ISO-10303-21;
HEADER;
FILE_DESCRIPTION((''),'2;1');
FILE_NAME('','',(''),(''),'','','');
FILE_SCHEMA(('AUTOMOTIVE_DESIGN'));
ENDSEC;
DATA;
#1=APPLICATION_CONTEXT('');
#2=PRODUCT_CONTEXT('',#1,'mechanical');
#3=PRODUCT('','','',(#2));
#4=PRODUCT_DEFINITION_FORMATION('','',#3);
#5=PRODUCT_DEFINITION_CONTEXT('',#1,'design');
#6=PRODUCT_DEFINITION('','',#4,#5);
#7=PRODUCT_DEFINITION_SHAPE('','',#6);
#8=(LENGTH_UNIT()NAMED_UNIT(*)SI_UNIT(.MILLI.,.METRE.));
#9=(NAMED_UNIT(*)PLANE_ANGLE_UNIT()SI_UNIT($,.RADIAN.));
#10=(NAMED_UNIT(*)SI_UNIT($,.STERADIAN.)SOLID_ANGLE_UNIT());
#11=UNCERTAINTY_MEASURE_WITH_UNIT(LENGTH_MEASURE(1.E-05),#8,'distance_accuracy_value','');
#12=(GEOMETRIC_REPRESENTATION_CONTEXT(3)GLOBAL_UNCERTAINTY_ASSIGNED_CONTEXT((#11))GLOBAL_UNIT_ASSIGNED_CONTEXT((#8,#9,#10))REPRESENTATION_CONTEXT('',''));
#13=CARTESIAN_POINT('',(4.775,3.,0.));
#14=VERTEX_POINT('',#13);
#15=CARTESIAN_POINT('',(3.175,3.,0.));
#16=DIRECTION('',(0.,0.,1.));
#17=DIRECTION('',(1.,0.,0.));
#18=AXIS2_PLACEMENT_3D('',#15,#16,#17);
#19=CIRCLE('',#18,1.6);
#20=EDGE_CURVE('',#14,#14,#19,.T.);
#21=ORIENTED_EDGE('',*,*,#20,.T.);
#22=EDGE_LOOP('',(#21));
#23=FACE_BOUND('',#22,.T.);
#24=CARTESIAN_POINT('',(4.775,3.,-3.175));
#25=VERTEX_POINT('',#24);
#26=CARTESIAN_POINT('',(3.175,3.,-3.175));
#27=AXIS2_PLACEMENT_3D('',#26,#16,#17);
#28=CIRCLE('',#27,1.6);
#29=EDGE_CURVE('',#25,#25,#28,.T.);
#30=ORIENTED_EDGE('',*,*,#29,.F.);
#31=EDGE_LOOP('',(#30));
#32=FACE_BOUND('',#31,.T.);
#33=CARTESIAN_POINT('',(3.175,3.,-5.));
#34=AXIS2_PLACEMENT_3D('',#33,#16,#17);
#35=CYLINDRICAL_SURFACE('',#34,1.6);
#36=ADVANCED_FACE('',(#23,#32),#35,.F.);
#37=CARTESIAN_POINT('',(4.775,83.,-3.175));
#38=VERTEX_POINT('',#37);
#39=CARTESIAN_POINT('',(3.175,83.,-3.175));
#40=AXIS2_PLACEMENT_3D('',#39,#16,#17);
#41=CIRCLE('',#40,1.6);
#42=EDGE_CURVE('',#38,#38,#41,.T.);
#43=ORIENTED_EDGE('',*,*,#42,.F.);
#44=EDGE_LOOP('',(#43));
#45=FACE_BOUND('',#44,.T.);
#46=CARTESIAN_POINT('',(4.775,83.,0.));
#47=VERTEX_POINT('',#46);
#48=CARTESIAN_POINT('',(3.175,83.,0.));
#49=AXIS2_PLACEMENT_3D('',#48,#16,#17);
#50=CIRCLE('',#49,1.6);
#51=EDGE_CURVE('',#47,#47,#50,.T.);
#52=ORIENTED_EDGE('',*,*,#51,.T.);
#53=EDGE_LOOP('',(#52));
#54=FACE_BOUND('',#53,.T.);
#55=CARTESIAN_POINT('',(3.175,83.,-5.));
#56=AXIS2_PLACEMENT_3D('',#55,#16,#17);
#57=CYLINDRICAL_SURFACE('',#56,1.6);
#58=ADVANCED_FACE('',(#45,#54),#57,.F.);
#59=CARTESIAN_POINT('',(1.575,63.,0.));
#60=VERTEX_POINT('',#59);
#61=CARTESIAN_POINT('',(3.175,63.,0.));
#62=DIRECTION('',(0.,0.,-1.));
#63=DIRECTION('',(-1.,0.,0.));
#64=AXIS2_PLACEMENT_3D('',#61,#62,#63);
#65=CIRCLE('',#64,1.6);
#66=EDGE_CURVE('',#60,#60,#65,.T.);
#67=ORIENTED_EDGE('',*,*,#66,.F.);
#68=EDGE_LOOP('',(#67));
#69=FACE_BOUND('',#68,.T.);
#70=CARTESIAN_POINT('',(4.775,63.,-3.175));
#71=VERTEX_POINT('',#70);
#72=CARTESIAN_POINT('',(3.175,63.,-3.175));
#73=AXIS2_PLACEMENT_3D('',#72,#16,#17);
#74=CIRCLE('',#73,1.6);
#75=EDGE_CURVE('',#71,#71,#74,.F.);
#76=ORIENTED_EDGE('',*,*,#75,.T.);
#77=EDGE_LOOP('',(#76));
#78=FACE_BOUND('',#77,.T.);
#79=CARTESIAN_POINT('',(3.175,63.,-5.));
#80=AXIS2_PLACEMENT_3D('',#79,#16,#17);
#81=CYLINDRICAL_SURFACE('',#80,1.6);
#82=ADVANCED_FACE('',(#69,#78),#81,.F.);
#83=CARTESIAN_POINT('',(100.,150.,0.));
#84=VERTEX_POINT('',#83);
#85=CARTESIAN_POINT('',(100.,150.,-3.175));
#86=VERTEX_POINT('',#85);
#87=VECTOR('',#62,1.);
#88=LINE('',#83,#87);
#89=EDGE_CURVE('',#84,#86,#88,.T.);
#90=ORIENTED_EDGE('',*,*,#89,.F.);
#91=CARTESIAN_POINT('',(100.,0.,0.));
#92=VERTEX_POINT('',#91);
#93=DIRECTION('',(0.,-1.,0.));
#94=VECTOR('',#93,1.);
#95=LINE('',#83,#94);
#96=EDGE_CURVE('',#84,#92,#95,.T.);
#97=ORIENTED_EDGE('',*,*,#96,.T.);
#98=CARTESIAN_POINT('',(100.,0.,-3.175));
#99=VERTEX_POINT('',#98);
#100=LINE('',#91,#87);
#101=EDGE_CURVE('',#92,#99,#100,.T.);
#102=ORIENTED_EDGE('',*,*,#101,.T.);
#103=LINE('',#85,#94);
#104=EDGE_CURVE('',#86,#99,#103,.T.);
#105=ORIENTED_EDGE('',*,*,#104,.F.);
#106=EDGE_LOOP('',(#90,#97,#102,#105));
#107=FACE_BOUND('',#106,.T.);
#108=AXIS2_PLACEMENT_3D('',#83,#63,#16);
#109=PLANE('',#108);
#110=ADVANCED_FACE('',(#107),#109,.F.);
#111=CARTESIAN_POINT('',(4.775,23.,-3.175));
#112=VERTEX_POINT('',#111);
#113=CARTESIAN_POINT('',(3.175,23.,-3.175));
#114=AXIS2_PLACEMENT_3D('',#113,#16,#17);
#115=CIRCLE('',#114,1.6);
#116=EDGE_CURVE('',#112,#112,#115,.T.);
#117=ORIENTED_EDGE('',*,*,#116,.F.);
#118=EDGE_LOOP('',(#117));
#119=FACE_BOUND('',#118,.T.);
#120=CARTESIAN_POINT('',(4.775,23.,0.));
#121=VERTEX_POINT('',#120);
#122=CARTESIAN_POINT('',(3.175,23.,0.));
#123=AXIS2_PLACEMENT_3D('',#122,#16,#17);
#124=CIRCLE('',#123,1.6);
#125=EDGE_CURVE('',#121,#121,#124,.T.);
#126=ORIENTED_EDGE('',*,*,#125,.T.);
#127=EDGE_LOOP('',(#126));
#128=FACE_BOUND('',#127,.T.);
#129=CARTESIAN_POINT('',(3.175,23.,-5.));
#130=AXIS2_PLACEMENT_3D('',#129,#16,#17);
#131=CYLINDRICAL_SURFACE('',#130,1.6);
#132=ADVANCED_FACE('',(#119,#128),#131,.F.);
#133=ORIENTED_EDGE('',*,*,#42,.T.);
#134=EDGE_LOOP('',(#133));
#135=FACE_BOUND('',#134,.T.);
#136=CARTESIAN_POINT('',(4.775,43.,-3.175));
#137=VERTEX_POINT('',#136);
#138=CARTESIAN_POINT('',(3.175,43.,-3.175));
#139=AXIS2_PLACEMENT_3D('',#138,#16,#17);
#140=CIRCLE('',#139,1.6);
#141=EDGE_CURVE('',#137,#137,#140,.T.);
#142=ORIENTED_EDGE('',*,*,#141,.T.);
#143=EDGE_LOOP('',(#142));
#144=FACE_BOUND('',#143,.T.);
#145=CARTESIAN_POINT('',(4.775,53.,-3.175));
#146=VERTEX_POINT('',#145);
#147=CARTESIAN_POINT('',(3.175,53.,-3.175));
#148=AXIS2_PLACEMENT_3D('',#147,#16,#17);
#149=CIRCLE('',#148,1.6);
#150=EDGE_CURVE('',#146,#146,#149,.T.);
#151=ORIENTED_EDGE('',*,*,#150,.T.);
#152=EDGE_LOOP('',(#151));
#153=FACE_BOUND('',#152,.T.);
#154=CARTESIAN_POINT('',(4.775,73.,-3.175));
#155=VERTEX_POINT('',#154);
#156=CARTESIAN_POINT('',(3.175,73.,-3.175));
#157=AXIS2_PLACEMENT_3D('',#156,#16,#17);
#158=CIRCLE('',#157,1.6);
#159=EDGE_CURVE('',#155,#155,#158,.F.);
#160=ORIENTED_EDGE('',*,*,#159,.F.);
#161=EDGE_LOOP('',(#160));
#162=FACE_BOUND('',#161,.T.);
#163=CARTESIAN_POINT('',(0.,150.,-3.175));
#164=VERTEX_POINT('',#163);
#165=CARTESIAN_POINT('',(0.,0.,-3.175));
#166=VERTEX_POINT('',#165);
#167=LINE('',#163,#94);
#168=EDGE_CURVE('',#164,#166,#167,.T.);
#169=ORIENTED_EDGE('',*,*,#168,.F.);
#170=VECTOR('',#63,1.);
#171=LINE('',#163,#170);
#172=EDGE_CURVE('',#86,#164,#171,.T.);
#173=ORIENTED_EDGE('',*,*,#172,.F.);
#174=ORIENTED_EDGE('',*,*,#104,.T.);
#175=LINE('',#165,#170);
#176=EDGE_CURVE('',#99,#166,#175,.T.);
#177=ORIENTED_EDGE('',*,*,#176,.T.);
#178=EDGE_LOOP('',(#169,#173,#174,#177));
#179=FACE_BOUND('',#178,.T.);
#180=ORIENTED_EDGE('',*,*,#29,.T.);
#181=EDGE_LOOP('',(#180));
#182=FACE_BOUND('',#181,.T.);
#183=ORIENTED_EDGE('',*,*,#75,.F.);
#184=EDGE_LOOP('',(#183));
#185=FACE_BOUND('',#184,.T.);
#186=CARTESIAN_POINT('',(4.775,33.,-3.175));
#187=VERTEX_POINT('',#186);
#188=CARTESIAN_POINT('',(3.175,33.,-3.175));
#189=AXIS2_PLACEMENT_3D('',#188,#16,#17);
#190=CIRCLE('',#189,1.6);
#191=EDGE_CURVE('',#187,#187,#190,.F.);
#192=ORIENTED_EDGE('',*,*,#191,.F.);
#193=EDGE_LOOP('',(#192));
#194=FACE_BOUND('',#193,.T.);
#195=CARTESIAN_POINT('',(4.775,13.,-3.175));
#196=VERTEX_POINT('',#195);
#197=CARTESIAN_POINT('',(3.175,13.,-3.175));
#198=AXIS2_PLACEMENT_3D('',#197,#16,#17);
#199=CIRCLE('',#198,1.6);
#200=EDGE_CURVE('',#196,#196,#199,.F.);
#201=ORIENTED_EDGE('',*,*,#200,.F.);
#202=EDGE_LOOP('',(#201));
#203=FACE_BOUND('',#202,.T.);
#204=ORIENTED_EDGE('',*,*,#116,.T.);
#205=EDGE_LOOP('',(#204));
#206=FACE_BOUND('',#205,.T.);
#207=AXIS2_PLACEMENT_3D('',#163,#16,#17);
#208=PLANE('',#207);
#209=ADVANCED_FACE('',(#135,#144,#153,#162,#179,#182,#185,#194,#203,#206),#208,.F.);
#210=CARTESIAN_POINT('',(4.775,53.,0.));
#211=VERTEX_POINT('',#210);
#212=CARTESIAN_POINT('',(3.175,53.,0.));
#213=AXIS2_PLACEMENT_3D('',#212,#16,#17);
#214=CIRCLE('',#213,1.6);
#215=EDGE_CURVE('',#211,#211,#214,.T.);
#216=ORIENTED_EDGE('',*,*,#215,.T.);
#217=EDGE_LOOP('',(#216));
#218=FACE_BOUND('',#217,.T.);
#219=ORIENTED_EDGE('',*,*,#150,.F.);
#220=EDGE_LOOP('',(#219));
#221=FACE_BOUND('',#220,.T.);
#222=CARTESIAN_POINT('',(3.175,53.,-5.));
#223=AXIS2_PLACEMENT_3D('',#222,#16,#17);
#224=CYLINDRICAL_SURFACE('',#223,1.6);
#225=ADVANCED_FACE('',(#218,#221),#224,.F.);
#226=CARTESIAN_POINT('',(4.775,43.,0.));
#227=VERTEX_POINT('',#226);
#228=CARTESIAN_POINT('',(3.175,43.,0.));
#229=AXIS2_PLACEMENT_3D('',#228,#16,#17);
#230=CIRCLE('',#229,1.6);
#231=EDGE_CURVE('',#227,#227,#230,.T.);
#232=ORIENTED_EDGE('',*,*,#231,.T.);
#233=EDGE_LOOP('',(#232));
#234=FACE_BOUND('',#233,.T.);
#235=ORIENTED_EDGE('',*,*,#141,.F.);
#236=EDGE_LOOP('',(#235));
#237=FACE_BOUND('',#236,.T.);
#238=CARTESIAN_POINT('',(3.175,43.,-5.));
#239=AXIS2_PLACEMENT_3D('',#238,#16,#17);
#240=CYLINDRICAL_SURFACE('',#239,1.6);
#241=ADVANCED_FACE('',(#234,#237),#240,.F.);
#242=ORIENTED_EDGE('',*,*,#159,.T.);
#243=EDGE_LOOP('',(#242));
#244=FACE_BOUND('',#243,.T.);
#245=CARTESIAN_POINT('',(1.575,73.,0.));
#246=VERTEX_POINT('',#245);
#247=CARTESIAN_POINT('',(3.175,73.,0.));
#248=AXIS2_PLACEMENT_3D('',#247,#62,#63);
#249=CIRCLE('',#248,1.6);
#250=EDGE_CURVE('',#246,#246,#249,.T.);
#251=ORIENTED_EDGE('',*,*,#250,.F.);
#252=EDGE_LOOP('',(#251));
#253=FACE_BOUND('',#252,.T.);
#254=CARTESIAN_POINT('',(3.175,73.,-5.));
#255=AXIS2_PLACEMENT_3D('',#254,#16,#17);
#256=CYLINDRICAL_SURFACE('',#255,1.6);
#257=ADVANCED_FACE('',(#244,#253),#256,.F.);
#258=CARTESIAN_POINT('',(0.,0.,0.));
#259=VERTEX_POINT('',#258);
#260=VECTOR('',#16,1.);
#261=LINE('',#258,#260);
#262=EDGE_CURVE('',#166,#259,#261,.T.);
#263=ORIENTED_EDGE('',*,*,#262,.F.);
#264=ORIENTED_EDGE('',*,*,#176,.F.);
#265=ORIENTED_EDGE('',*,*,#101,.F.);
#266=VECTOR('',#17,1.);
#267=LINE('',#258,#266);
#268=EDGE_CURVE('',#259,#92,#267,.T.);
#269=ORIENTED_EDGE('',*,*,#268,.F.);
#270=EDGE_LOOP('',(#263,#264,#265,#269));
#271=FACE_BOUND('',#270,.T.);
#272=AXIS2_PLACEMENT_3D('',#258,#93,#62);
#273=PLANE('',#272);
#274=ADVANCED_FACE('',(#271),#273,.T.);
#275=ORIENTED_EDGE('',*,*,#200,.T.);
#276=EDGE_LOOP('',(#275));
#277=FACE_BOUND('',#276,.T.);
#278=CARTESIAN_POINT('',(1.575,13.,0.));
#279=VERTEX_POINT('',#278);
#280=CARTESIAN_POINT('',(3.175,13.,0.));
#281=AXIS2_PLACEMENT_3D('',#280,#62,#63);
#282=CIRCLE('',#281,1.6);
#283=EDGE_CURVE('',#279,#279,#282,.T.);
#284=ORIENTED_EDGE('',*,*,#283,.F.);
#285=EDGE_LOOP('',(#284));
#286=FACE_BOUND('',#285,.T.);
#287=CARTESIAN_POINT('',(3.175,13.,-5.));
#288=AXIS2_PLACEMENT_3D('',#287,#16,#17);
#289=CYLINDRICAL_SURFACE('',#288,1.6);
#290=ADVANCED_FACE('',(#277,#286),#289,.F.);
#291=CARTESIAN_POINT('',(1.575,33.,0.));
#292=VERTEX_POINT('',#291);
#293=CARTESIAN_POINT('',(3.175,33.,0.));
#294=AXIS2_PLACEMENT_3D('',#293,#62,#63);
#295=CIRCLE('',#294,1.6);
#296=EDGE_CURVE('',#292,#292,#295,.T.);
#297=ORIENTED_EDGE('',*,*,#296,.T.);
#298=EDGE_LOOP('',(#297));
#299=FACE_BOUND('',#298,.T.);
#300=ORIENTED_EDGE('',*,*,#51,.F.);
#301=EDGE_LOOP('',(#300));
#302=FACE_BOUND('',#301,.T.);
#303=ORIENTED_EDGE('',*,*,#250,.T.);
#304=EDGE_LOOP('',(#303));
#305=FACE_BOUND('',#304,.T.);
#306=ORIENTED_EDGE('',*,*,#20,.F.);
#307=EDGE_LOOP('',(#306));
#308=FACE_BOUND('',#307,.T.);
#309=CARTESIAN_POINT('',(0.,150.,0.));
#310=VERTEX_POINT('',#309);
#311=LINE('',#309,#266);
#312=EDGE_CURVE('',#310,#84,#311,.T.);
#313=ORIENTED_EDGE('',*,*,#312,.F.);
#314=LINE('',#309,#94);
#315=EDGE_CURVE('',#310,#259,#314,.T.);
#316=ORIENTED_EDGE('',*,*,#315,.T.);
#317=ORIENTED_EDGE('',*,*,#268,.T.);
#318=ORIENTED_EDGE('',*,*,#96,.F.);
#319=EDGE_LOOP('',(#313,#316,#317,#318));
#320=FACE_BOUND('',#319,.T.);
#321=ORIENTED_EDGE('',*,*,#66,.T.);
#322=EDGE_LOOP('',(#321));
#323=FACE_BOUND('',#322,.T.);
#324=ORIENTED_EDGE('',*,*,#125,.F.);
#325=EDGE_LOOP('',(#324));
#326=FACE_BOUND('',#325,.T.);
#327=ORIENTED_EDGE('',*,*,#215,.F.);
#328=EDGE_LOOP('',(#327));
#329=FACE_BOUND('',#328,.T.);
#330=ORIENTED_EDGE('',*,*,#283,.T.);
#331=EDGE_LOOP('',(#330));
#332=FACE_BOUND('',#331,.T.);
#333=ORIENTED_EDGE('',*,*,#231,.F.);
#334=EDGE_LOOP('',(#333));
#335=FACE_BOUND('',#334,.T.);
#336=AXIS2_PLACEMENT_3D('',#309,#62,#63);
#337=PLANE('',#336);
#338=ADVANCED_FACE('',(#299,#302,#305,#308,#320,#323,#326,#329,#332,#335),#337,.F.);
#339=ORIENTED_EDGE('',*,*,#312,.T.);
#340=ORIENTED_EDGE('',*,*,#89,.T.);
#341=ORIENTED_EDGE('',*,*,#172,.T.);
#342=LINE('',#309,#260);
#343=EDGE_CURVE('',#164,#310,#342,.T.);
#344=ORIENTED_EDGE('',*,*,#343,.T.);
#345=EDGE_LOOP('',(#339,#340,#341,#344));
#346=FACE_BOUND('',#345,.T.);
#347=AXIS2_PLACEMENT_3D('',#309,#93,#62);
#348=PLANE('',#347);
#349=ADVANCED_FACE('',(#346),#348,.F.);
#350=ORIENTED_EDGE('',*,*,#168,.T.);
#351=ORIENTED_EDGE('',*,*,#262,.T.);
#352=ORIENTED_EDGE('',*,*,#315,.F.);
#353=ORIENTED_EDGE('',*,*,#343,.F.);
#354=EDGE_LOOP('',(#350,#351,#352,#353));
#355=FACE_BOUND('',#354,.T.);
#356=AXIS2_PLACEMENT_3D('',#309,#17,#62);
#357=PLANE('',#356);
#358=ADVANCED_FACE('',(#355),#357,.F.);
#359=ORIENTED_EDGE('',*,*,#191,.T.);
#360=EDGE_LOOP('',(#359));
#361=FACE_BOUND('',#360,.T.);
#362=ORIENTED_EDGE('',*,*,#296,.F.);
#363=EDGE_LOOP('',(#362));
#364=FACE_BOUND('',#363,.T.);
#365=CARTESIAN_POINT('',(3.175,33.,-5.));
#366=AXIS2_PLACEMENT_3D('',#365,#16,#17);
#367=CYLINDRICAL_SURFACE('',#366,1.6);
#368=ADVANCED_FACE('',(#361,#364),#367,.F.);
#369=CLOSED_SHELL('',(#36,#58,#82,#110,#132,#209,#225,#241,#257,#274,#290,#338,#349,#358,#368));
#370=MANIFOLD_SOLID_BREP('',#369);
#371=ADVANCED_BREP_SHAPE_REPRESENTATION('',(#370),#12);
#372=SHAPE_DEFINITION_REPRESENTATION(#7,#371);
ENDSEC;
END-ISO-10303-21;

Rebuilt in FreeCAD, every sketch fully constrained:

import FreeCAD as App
import Part
import Sketcher
Q = App.Units.Quantity


def add_polygon(sketch, points):
    """Adds a closed chain of lines whose ends are joined by coincident constraints."""
    first, n = sketch.GeometryCount, len(points)
    for a, b in zip(points, points[1:] + points[:1]):
        sketch.addGeometry(Part.LineSegment(App.Vector(*a, 0), App.Vector(*b, 0)), False)
    for i in range(n):
        sketch.addConstraint(Sketcher.Constraint("Coincident", first + i, 2, first + (i + 1) % n, 1))

doc = App.newDocument("Part")
body = doc.addObject("PartDesign::Body", "Body")

sketch1 = body.newObject("Sketcher::SketchObject", "Sketch")
sketch1.AttachmentSupport = (doc.getObject("XZ_Plane"), [""])
sketch1.MapMode = "FlatFace"
add_polygon(sketch1, [(0, -3.2), (0, 0), (100, 0), (100, -3.2)])
sketch1.addConstraint(Sketcher.Constraint("Vertical", 0))
sketch1.addConstraint(Sketcher.Constraint("Horizontal", 1))
sketch1.addConstraint(Sketcher.Constraint("Vertical", 2))
sketch1.addConstraint(Sketcher.Constraint("Horizontal", 3))
sketch1.addConstraint(Sketcher.Constraint("Coincident", 0, 2, -1, 1))
sketch1.addConstraint(Sketcher.Constraint("DistanceX", 1, 1, 1, 2, Q("100 mm")))
sketch1.addConstraint(Sketcher.Constraint("DistanceY", 0, 1, 0, 2, Q("3.175 mm")))
pad1 = body.newObject("PartDesign::Pad", "Pad")
pad1.Profile = sketch1
pad1.Length = 150
pad1.Reversed = True

sketch2 = body.newObject("Sketcher::SketchObject", "Sketch001")
sketch2.AttachmentSupport = (doc.getObject("XY_Plane"), [""])
sketch2.MapMode = "FlatFace"
sketch2.addGeometry(Part.Circle(App.Vector(3.2, 83, 0), App.Vector(0, 0, 1), 1.6), False)
sketch2.addConstraint(Sketcher.Constraint("Diameter", 0, Q("3.2 mm")))
sketch2.addConstraint(Sketcher.Constraint("DistanceY", -1, 1, 0, 3, Q("83 mm")))
sketch2.addConstraint(Sketcher.Constraint("DistanceX", -1, 1, 0, 3, Q("3.175 mm")))
pocket1 = body.newObject("PartDesign::Pocket", "Pocket")
pocket1.Profile = sketch2
pocket1.Length = 5

sketch3 = body.newObject("Sketcher::SketchObject", "Sketch002")
sketch3.AttachmentSupport = (doc.getObject("XY_Plane"), [""])
sketch3.MapMode = "FlatFace"
sketch3.addGeometry(Part.Circle(App.Vector(3.2, 73, 0), App.Vector(0, 0, 1), 1.6), False)
sketch3.addConstraint(Sketcher.Constraint("Diameter", 0, Q("3.2 mm")))
sketch3.addConstraint(Sketcher.Constraint("DistanceY", -1, 1, 0, 3, Q("73 mm")))
sketch3.addConstraint(Sketcher.Constraint("DistanceX", -1, 1, 0, 3, Q("3.175 mm")))
pocket2 = body.newObject("PartDesign::Pocket", "Pocket001")
pocket2.Profile = sketch3
pocket2.Length = 5

sketch4 = body.newObject("Sketcher::SketchObject", "Sketch003")
sketch4.AttachmentSupport = (doc.getObject("XY_Plane"), [""])
sketch4.MapMode = "FlatFace"
sketch4.addGeometry(Part.Circle(App.Vector(3.2, 53, 0), App.Vector(0, 0, 1), 1.6), False)
sketch4.addConstraint(Sketcher.Constraint("Diameter", 0, Q("3.2 mm")))
sketch4.addConstraint(Sketcher.Constraint("DistanceY", -1, 1, 0, 3, Q("53 mm")))
sketch4.addConstraint(Sketcher.Constraint("DistanceX", -1, 1, 0, 3, Q("3.175 mm")))
pocket3 = body.newObject("PartDesign::Pocket", "Pocket002")
pocket3.Profile = sketch4
pocket3.Length = 5

sketch5 = body.newObject("Sketcher::SketchObject", "Sketch004")
sketch5.AttachmentSupport = (doc.getObject("XY_Plane"), [""])
sketch5.MapMode = "FlatFace"
sketch5.addGeometry(Part.Circle(App.Vector(3.2, 63, 0), App.Vector(0, 0, 1), 1.6), False)
sketch5.addConstraint(Sketcher.Constraint("Diameter", 0, Q("3.2 mm")))
sketch5.addConstraint(Sketcher.Constraint("DistanceY", -1, 1, 0, 3, Q("63 mm")))
sketch5.addConstraint(Sketcher.Constraint("DistanceX", -1, 1, 0, 3, Q("3.175 mm")))
pocket4 = body.newObject("PartDesign::Pocket", "Pocket003")
pocket4.Profile = sketch5
pocket4.Length = 5

sketch6 = body.newObject("Sketcher::SketchObject", "Sketch005")
sketch6.AttachmentSupport = (doc.getObject("XY_Plane"), [""])
sketch6.MapMode = "FlatFace"
sketch6.addGeometry(Part.Circle(App.Vector(3.2, 43, 0), App.Vector(0, 0, 1), 1.6), False)
sketch6.addConstraint(Sketcher.Constraint("Diameter", 0, Q("3.2 mm")))
sketch6.addConstraint(Sketcher.Constraint("DistanceY", -1, 1, 0, 3, Q("43 mm")))
sketch6.addConstraint(Sketcher.Constraint("DistanceX", -1, 1, 0, 3, Q("3.175 mm")))
pocket5 = body.newObject("PartDesign::Pocket", "Pocket004")
pocket5.Profile = sketch6
pocket5.Length = 5

sketch7 = body.newObject("Sketcher::SketchObject", "Sketch006")
sketch7.AttachmentSupport = (doc.getObject("XY_Plane"), [""])
sketch7.MapMode = "FlatFace"
sketch7.addGeometry(Part.Circle(App.Vector(3.2, 33, 0), App.Vector(0, 0, 1), 1.6), False)
sketch7.addConstraint(Sketcher.Constraint("Diameter", 0, Q("3.2 mm")))
sketch7.addConstraint(Sketcher.Constraint("DistanceY", -1, 1, 0, 3, Q("33 mm")))
sketch7.addConstraint(Sketcher.Constraint("DistanceX", -1, 1, 0, 3, Q("3.175 mm")))
pocket6 = body.newObject("PartDesign::Pocket", "Pocket005")
pocket6.Profile = sketch7
pocket6.Length = 5

sketch8 = body.newObject("Sketcher::SketchObject", "Sketch007")
sketch8.AttachmentSupport = (doc.getObject("XY_Plane"), [""])
sketch8.MapMode = "FlatFace"
sketch8.addGeometry(Part.Circle(App.Vector(3.2, 23, 0), App.Vector(0, 0, 1), 1.6), False)
sketch8.addConstraint(Sketcher.Constraint("Diameter", 0, Q("3.2 mm")))
sketch8.addConstraint(Sketcher.Constraint("DistanceY", -1, 1, 0, 3, Q("23 mm")))
sketch8.addConstraint(Sketcher.Constraint("DistanceX", -1, 1, 0, 3, Q("3.175 mm")))
pocket7 = body.newObject("PartDesign::Pocket", "Pocket006")
pocket7.Profile = sketch8
pocket7.Length = 5

sketch9 = body.newObject("Sketcher::SketchObject", "Sketch008")
sketch9.AttachmentSupport = (doc.getObject("XY_Plane"), [""])
sketch9.MapMode = "FlatFace"
sketch9.addGeometry(Part.Circle(App.Vector(3.2, 13, 0), App.Vector(0, 0, 1), 1.6), False)
sketch9.addConstraint(Sketcher.Constraint("Diameter", 0, Q("3.2 mm")))
sketch9.addConstraint(Sketcher.Constraint("DistanceY", -1, 1, 0, 3, Q("13 mm")))
sketch9.addConstraint(Sketcher.Constraint("DistanceX", -1, 1, 0, 3, Q("3.175 mm")))
pocket8 = body.newObject("PartDesign::Pocket", "Pocket007")
pocket8.Profile = sketch9
pocket8.Length = 5

sketch10 = body.newObject("Sketcher::SketchObject", "Sketch009")
sketch10.AttachmentSupport = (doc.getObject("XY_Plane"), [""])
sketch10.MapMode = "FlatFace"
sketch10.addGeometry(Part.Circle(App.Vector(3.2, 3, 0), App.Vector(0, 0, 1), 1.6), False)
sketch10.addConstraint(Sketcher.Constraint("Diameter", 0, Q("3.2 mm")))
sketch10.addConstraint(Sketcher.Constraint("DistanceY", -1, 1, 0, 3, Q("3 mm")))
sketch10.addConstraint(Sketcher.Constraint("DistanceX", -1, 1, 0, 3, Q("3.175 mm")))
pocket9 = body.newObject("PartDesign::Pocket", "Pocket008")
pocket9.Profile = sketch10
pocket9.Length = 5

doc.recompute()
